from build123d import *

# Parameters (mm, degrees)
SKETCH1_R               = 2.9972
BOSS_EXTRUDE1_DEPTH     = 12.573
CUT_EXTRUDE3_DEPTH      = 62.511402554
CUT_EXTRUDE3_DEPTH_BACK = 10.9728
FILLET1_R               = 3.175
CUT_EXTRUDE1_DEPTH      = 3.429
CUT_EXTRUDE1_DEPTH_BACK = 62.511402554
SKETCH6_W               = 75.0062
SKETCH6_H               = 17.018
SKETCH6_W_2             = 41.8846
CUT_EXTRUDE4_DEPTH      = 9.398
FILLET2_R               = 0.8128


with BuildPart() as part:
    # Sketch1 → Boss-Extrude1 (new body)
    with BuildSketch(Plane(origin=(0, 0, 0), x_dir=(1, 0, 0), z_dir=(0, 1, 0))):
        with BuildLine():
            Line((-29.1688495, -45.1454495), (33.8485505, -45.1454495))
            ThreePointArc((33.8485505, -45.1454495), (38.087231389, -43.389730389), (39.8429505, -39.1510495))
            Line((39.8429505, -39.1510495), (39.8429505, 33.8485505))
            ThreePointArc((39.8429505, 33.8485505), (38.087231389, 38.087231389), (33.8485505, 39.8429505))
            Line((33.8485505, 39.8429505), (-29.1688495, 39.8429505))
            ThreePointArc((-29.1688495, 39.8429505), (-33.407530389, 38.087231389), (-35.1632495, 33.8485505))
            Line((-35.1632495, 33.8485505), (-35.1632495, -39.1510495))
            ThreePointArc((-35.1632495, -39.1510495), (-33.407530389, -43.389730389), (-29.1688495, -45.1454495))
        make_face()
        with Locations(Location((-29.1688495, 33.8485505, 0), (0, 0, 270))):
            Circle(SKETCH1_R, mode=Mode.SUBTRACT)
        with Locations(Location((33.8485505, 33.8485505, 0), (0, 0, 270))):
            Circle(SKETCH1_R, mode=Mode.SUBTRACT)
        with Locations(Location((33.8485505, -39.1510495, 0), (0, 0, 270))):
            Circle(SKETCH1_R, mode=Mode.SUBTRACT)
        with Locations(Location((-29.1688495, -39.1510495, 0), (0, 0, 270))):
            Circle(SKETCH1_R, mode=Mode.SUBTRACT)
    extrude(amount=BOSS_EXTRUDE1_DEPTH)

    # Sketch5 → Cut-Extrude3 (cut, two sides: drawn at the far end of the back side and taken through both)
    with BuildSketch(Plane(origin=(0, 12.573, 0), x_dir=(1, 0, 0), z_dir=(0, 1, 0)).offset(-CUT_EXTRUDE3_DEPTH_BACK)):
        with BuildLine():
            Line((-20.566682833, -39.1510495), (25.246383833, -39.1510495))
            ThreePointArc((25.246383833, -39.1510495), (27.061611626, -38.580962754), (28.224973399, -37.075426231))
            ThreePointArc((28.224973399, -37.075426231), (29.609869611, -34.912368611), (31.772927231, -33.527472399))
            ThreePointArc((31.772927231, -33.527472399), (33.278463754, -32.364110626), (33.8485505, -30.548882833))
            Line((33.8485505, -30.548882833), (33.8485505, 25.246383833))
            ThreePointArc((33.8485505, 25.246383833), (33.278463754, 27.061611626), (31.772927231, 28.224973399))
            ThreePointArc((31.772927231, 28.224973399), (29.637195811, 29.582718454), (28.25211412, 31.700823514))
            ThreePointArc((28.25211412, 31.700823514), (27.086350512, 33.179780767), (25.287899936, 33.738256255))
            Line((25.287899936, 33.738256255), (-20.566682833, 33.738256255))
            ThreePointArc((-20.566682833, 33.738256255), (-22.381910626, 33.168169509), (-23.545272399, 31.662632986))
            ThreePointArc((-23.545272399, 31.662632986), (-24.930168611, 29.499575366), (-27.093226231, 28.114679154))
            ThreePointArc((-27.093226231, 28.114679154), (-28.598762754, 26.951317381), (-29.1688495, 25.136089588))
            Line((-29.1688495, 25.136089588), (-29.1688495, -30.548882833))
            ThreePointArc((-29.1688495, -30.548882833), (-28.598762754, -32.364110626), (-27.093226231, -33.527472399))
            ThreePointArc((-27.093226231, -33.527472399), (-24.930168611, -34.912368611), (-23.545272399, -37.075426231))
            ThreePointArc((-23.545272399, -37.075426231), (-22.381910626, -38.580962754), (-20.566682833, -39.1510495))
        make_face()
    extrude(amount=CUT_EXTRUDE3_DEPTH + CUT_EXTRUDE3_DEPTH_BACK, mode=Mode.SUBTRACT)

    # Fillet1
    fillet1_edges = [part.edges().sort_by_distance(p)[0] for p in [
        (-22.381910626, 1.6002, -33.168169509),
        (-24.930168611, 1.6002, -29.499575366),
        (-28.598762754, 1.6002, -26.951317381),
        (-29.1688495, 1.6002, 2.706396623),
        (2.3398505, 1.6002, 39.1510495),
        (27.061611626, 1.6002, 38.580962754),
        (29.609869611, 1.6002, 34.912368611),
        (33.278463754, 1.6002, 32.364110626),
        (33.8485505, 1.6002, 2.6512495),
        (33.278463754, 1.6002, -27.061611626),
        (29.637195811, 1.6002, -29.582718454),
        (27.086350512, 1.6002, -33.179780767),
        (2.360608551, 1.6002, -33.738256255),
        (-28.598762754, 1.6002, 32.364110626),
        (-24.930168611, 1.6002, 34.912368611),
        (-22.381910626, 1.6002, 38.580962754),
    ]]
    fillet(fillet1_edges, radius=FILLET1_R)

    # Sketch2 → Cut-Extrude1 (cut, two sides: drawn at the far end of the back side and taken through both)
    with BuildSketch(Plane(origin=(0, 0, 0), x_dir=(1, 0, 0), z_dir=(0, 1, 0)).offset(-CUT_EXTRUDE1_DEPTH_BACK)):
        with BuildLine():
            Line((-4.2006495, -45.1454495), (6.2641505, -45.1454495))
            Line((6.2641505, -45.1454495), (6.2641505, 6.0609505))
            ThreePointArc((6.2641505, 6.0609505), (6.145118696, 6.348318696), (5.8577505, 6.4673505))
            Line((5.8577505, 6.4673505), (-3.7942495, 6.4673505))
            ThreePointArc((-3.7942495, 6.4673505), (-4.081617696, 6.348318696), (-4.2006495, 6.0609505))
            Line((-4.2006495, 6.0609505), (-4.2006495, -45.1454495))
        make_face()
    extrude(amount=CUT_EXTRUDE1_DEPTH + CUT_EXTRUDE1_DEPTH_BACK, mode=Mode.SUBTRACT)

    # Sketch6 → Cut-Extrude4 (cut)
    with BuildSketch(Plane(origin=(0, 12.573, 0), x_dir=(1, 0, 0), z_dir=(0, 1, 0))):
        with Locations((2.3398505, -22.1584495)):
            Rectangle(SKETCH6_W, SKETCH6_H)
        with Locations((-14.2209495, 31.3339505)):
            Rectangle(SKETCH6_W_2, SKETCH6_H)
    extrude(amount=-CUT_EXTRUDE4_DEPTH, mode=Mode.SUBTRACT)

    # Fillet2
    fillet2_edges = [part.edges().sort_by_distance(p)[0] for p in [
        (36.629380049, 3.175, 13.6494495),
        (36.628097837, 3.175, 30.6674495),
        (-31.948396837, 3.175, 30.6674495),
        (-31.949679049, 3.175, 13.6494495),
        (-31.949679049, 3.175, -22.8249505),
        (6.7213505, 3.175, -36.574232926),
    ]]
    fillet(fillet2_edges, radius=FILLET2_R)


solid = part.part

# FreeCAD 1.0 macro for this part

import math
import FreeCAD as App
import Part
import Sketcher
from FreeCAD import Vector
Q = App.Units.Quantity


def edges_at(feature, points):
    """Names of the edges that pass closest to the given points."""
    edges = feature.Shape.Edges
    near = lambda p: min(range(len(edges)), key=lambda i: edges[i].distToShape(Part.Vertex(*p))[0])
    return sorted({f"Edge{near(p) + 1}" for p in points})

doc = App.newDocument("Part")
body = doc.addObject("PartDesign::Body", "Body")

# Sketch on XZ plane
sketch1 = body.newObject("Sketcher::SketchObject", "Sketch")
sketch1.AttachmentSupport = (doc.getObject("XZ_Plane"), [""])
sketch1.MapMode = "FlatFace"
sketch1.addGeometry([
    Part.LineSegment(Vector(-29.16885, 45.145449, 0), Vector(33.848551, 45.145449, 0)),  # 0
    Part.ArcOfCircle(Part.Circle(Vector(33.848551, 39.151049, 0), Vector(0, 0, 1), 5.9944), math.radians(0), math.radians(90)),  # 1
    Part.LineSegment(Vector(39.842951, 39.151049, 0), Vector(39.842951, -33.848551, 0)),  # 2
    Part.ArcOfCircle(Part.Circle(Vector(33.848551, -33.848551, 0), Vector(0, 0, 1), 5.9944), math.radians(-90), math.radians(0)),  # 3
    Part.LineSegment(Vector(33.848551, -39.842951, 0), Vector(-29.16885, -39.842951, 0)),  # 4
    Part.ArcOfCircle(Part.Circle(Vector(-29.16885, -33.848551, 0), Vector(0, 0, 1), 5.9944), math.radians(180), math.radians(270)),  # 5
    Part.LineSegment(Vector(-35.163249, -33.848551, 0), Vector(-35.163249, 39.151049, 0)),  # 6
    Part.ArcOfCircle(Part.Circle(Vector(-29.16885, 39.151049, 0), Vector(0, 0, 1), 5.9944), math.radians(90), math.radians(180)),  # 7
    Part.Circle(Vector(-29.16885, 39.151049, 0), Vector(0, 0, 1), 2.9972),  # 8
    Part.Circle(Vector(33.848551, 39.151049, 0), Vector(0, 0, 1), 2.9972),  # 9
    Part.Circle(Vector(-29.16885, -33.848551, 0), Vector(0, 0, 1), 2.9972),  # 10
    Part.Circle(Vector(33.848551, -33.848551, 0), Vector(0, 0, 1), 2.9972),  # 11
], False)
sketch1.addConstraint([
    Sketcher.Constraint("Tangent", 0, 2, 1, 2),
    Sketcher.Constraint("Tangent", 1, 1, 2, 1),
    Sketcher.Constraint("Tangent", 2, 2, 3, 2),
    Sketcher.Constraint("Tangent", 3, 1, 4, 1),
    Sketcher.Constraint("Tangent", 4, 2, 5, 2),
    Sketcher.Constraint("Tangent", 5, 1, 6, 1),
    Sketcher.Constraint("Tangent", 6, 2, 7, 2),
    Sketcher.Constraint("Tangent", 7, 1, 0, 1),
    Sketcher.Constraint("Horizontal", 0),
    Sketcher.Constraint("Vertical", 2),
    Sketcher.Constraint("Horizontal", 4),
    Sketcher.Constraint("Vertical", 6),
    Sketcher.Constraint("Coincident", 8, 3, 7, 3),
    Sketcher.Constraint("Coincident", 9, 3, 1, 3),
    Sketcher.Constraint("Coincident", 10, 3, 5, 3),
    Sketcher.Constraint("Coincident", 11, 3, 3, 3),
    Sketcher.Constraint("Equal", 1, 3),
    Sketcher.Constraint("Equal", 3, 5),
    Sketcher.Constraint("Equal", 5, 7),
    Sketcher.Constraint("Equal", 8, 9),
    Sketcher.Constraint("Equal", 9, 10),
    Sketcher.Constraint("Equal", 10, 11),
    Sketcher.Constraint("Diameter", 8, Q("0.236 in")),
    Sketcher.Constraint("Radius", 1, Q("0.236 in")),
    Sketcher.Constraint("DistanceX", 0, 1, 0, 2, Q("2.481 in")),
    Sketcher.Constraint("DistanceY", 2, 2, 2, 1, Q("2.874 in")),
    Sketcher.Constraint("DistanceX", -1, 1, 1, 3, 33.848551),
    Sketcher.Constraint("DistanceY", -1, 1, 1, 3, 39.151049),
])
pad1 = body.newObject("PartDesign::Pad", "Pad")
pad1.Profile = sketch1
pad1.Length = Q("0.495 in")
pad1.Reversed = True

# Sketch on XZ plane
sketch2 = body.newObject("Sketcher::SketchObject", "Sketch001")
sketch2.AttachmentSupport = (doc.getObject("XZ_Plane"), [""])
sketch2.MapMode = "FlatFace"
sketch2.AttachmentOffset = App.Placement(Vector(0, 0, -0.495 * 25.4), App.Rotation())
sketch2.addGeometry([
    Part.LineSegment(Vector(-20.566683, 39.151049, 0), Vector(25.246384, 39.151049, 0)),  # 0
    Part.ArcOfCircle(Part.Circle(Vector(25.246384, 35.97605, 0), Vector(0, 0, 1), 3.175), math.radians(20.258754), math.radians(90)),  # 1
    Part.ArcOfCircle(Part.Circle(Vector(33.848551, 39.15105, 0), Vector(0, 0, 1), 5.9944), math.radians(-159.741246), math.radians(-110.258754)),  # 2
    Part.ArcOfCircle(Part.Circle(Vector(30.673551, 30.548883, 0), Vector(0, 0, 1), 3.175), math.radians(0), math.radians(69.741246)),  # 3
    Part.LineSegment(Vector(33.848551, 30.548883, 0), Vector(33.848551, -25.246384, 0)),  # 4
    Part.ArcOfCircle(Part.Circle(Vector(30.673551, -25.246384, 0), Vector(0, 0, 1), 3.175), math.radians(-69.741246), math.radians(0)),  # 5
    Part.ArcOfCircle(Part.Circle(Vector(33.848551, -33.848551, 0), Vector(0, 0, 1), 5.9944), math.radians(110.258754), math.radians(159.004851)),  # 6
    Part.ArcOfCircle(Part.Circle(Vector(25.2879, -30.563256, 0), Vector(0, 0, 1), 3.175), math.radians(-90), math.radians(-20.995149)),  # 7
    Part.LineSegment(Vector(25.2879, -33.738256, 0), Vector(-20.566683, -33.738256, 0)),  # 8
    Part.ArcOfCircle(Part.Circle(Vector(-20.566683, -30.563256, 0), Vector(0, 0, 1), 3.175), math.radians(-159.741246), math.radians(-90)),  # 9
    Part.ArcOfCircle(Part.Circle(Vector(-29.16885, -33.738256, 0), Vector(0, 0, 1), 5.9944), math.radians(20.258754), math.radians(69.741246)),  # 10
    Part.ArcOfCircle(Part.Circle(Vector(-25.99385, -25.13609, 0), Vector(0, 0, 1), 3.175), math.radians(180), math.radians(249.741246)),  # 11
    Part.LineSegment(Vector(-29.16885, -25.13609, 0), Vector(-29.16885, 30.548883, 0)),  # 12
    Part.ArcOfCircle(Part.Circle(Vector(-25.99385, 30.548883, 0), Vector(0, 0, 1), 3.175), math.radians(110.258754), math.radians(180)),  # 13
    Part.ArcOfCircle(Part.Circle(Vector(-29.16885, 39.15105, 0), Vector(0, 0, 1), 5.9944), math.radians(-69.741246), math.radians(-20.258754)),  # 14
    Part.ArcOfCircle(Part.Circle(Vector(-20.566683, 35.97605, 0), Vector(0, 0, 1), 3.175), math.radians(90), math.radians(159.741246)),  # 15
], False)
sketch2.addConstraint([
    Sketcher.Constraint("Tangent", 0, 2, 1, 2),
    Sketcher.Constraint("Tangent", 1, 1, 2, 1),
    Sketcher.Constraint("Tangent", 2, 2, 3, 2),
    Sketcher.Constraint("Tangent", 3, 1, 4, 1),
    Sketcher.Constraint("Tangent", 4, 2, 5, 2),
    Sketcher.Constraint("Tangent", 5, 1, 6, 1),
    Sketcher.Constraint("Tangent", 6, 2, 7, 2),
    Sketcher.Constraint("Tangent", 7, 1, 8, 1),
    Sketcher.Constraint("Tangent", 8, 2, 9, 2),
    Sketcher.Constraint("Tangent", 9, 1, 10, 1),
    Sketcher.Constraint("Tangent", 10, 2, 11, 2),
    Sketcher.Constraint("Tangent", 11, 1, 12, 1),
    Sketcher.Constraint("Tangent", 12, 2, 13, 2),
    Sketcher.Constraint("Tangent", 13, 1, 14, 1),
    Sketcher.Constraint("Tangent", 14, 2, 15, 2),
    Sketcher.Constraint("Tangent", 15, 1, 0, 1),
    Sketcher.Constraint("Horizontal", 0),
    Sketcher.Constraint("Vertical", 4),
    Sketcher.Constraint("Horizontal", 8),
    Sketcher.Constraint("Vertical", 12),
    Sketcher.Constraint("Equal", 1, 3),
    Sketcher.Constraint("Equal", 3, 5),
    Sketcher.Constraint("Equal", 2, 6),
    Sketcher.Constraint("Equal", 5, 7),
    Sketcher.Constraint("Equal", 7, 9),
    Sketcher.Constraint("Equal", 6, 10),
    Sketcher.Constraint("Equal", 9, 11),
    Sketcher.Constraint("Equal", 11, 13),
    Sketcher.Constraint("Equal", 10, 14),
    Sketcher.Constraint("Equal", 13, 15),
    Sketcher.Constraint("Horizontal", 3, 3, 13, 3),
    Sketcher.Constraint("Horizontal", 2, 3, 14, 3),
    Sketcher.Constraint("Horizontal", 14, 3, 0, 2),
    Sketcher.Constraint("Horizontal", 10, 3, 7, 1),
    Sketcher.Constraint("Vertical", 2, 3, 6, 3),
    Sketcher.Constraint("Vertical", 10, 3, 14, 3),
    Sketcher.Constraint("Vertical", 6, 3, 3, 1),
    Sketcher.Constraint("Radius", 1, Q("0.125 in")),
    Sketcher.Constraint("Radius", 2, Q("0.236 in")),
    Sketcher.Constraint("DistanceY", 6, 3, 1, 3, Q("2.749 in")),
    Sketcher.Constraint("DistanceX", 10, 3, 5, 3, Q("2.356 in")),
    Sketcher.Constraint("DistanceX", -1, 1, 7, 3, 25.2879),
    Sketcher.Constraint("DistanceX", 8, 2, 8, 1, 45.854583),
    Sketcher.Constraint("DistanceY", -1, 1, 1, 3, 35.97605),
])
pocket1 = body.newObject("PartDesign::Pocket", "Pocket")
pocket1.Profile = sketch2
pocket1.Type = "TwoLengths"
pocket1.Length = 62.511403
pocket1.Length2 = Q("0.432 in")
doc.recompute()

fillet = body.newObject("PartDesign::Fillet", "Fillet")
fillet.Base = (pocket1, edges_at(pocket1, [
    (-22.382, 1.6, -33.168),
    (-24.93, 1.6, -29.5),
    (-28.599, 1.6, -26.951),
    (-29.169, 1.6, 2.706),
    (2.34, 1.6, 39.151),
    (27.062, 1.6, 38.581),
    (29.61, 1.6, 34.912),
    (33.278, 1.6, 32.364),
    (33.849, 1.6, 2.651),
    (33.278, 1.6, -27.062),
    (29.637, 1.6, -29.583),
    (27.086, 1.6, -33.18),
    (2.361, 1.6, -33.738),
    (-28.599, 1.6, 32.364),
    (-24.93, 1.6, 34.912),
    (-22.382, 1.6, 38.581),
]))
fillet.Radius = Q("0.125 in")

# Sketch on XZ plane
sketch3 = body.newObject("Sketcher::SketchObject", "Sketch002")
sketch3.AttachmentSupport = (doc.getObject("XZ_Plane"), [""])
sketch3.MapMode = "FlatFace"
sketch3.addGeometry([
    Part.LineSegment(Vector(-4.200649, 45.145449, 0), Vector(6.264151, 45.145449, 0)),  # 0
    Part.LineSegment(Vector(6.264151, 45.145449, 0), Vector(6.264151, -6.06095, 0)),  # 1
    Part.ArcOfCircle(Part.Circle(Vector(5.85775, -6.06095, 0), Vector(0, 0, 1), 0.4064), math.radians(-90), math.radians(0)),  # 2
    Part.LineSegment(Vector(5.85775, -6.467351, 0), Vector(-3.794249, -6.467351, 0)),  # 3
    Part.ArcOfCircle(Part.Circle(Vector(-3.794249, -6.06095, 0), Vector(0, 0, 1), 0.4064), math.radians(180), math.radians(270)),  # 4
    Part.LineSegment(Vector(-4.200649, -6.06095, 0), Vector(-4.200649, 45.145449, 0)),  # 5
], False)
sketch3.addConstraint([
    Sketcher.Constraint("Coincident", 0, 2, 1, 1),
    Sketcher.Constraint("Tangent", 1, 2, 2, 2),
    Sketcher.Constraint("Tangent", 2, 1, 3, 1),
    Sketcher.Constraint("Tangent", 3, 2, 4, 2),
    Sketcher.Constraint("Tangent", 4, 1, 5, 1),
    Sketcher.Constraint("Coincident", 5, 2, 0, 1),
    Sketcher.Constraint("Horizontal", 0),
    Sketcher.Constraint("Vertical", 1),
    Sketcher.Constraint("Horizontal", 3),
    Sketcher.Constraint("Vertical", 5),
    Sketcher.Constraint("Equal", 2, 4),
    Sketcher.Constraint("Radius", 2, Q("0.016 in")),
    Sketcher.Constraint("DistanceX", 3, 2, 3, 1, Q("0.38 in")),
    Sketcher.Constraint("DistanceY", 1, 2, 1, 1, Q("2.016 in")),
    Sketcher.Constraint("DistanceX", -1, 1, 2, 3, 5.85775),
    Sketcher.Constraint("DistanceY", 2, 3, -1, 1, 6.06095),
])
pocket2 = body.newObject("PartDesign::Pocket", "Pocket001")
pocket2.Profile = sketch3
pocket2.Type = "TwoLengths"
pocket2.Length = Q("0.135 in")
pocket2.Length2 = 62.511403

# Sketch on XZ plane
sketch4 = body.newObject("Sketcher::SketchObject", "Sketch003")
sketch4.AttachmentSupport = (doc.getObject("XZ_Plane"), [""])
sketch4.MapMode = "FlatFace"
sketch4.AttachmentOffset = App.Placement(Vector(0, 0, -0.495 * 25.4), App.Rotation())
sketch4.addGeometry([
    Part.LineSegment(Vector(-35.163249, 13.649449, 0), Vector(-35.163249, 30.66745, 0)),  # 0
    Part.LineSegment(Vector(-35.163249, 30.66745, 0), Vector(39.842951, 30.66745, 0)),  # 1
    Part.LineSegment(Vector(39.842951, 30.66745, 0), Vector(39.842951, 13.649449, 0)),  # 2
    Part.LineSegment(Vector(39.842951, 13.649449, 0), Vector(-35.163249, 13.649449, 0)),  # 3
    Part.LineSegment(Vector(-35.163249, -39.842951, 0), Vector(-35.163249, -22.82495, 0)),  # 4
    Part.LineSegment(Vector(-35.163249, -22.82495, 0), Vector(6.72135, -22.82495, 0)),  # 5
    Part.LineSegment(Vector(6.72135, -22.82495, 0), Vector(6.72135, -39.842951, 0)),  # 6
    Part.LineSegment(Vector(6.72135, -39.842951, 0), Vector(-35.163249, -39.842951, 0)),  # 7
], False)
sketch4.addConstraint([
    Sketcher.Constraint("Coincident", 0, 2, 1, 1),
    Sketcher.Constraint("Coincident", 1, 2, 2, 1),
    Sketcher.Constraint("Coincident", 2, 2, 3, 1),
    Sketcher.Constraint("Coincident", 3, 2, 0, 1),
    Sketcher.Constraint("Coincident", 4, 2, 5, 1),
    Sketcher.Constraint("Coincident", 5, 2, 6, 1),
    Sketcher.Constraint("Coincident", 6, 2, 7, 1),
    Sketcher.Constraint("Coincident", 7, 2, 4, 1),
    Sketcher.Constraint("Vertical", 0),
    Sketcher.Constraint("Horizontal", 1),
    Sketcher.Constraint("Vertical", 2),
    Sketcher.Constraint("Horizontal", 3),
    Sketcher.Constraint("Vertical", 4),
    Sketcher.Constraint("Horizontal", 5),
    Sketcher.Constraint("Vertical", 6),
    Sketcher.Constraint("Horizontal", 7),
    Sketcher.Constraint("Vertical", 3, 2, 4, 2),
    Sketcher.Constraint("Equal", 2, 4),
    Sketcher.Constraint("DistanceY", 0, 1, 0, 2, Q("0.67 in")),
    Sketcher.Constraint("DistanceX", 1, 1, 1, 2, Q("2.953 in")),
    Sketcher.Constraint("DistanceX", 5, 1, 5, 2, Q("1.649 in")),
    Sketcher.Constraint("DistanceY", 4, 2, 3, 2, Q("1.436 in")),
    Sketcher.Constraint("DistanceX", 0, 2, -1, 1, 35.163249),
    Sketcher.Constraint("DistanceY", -1, 1, 0, 2, 30.66745),
])
pocket3 = body.newObject("PartDesign::Pocket", "Pocket002")
pocket3.Profile = sketch4
pocket3.Length = Q("0.37 in")
pocket3.Reversed = True
doc.recompute()

fillet2 = body.newObject("PartDesign::Fillet", "Fillet001")
fillet2.Base = (pocket3, edges_at(pocket3, [
    (36.629, 3.175, 13.649),
    (36.628, 3.175, 30.667),
    (-31.948, 3.175, 30.667),
    (-31.95, 3.175, 13.649),
    (-31.95, 3.175, -22.825),
    (6.721, 3.175, -36.574),
]))
fillet2.Radius = Q("0.032 in")

doc.recompute()
